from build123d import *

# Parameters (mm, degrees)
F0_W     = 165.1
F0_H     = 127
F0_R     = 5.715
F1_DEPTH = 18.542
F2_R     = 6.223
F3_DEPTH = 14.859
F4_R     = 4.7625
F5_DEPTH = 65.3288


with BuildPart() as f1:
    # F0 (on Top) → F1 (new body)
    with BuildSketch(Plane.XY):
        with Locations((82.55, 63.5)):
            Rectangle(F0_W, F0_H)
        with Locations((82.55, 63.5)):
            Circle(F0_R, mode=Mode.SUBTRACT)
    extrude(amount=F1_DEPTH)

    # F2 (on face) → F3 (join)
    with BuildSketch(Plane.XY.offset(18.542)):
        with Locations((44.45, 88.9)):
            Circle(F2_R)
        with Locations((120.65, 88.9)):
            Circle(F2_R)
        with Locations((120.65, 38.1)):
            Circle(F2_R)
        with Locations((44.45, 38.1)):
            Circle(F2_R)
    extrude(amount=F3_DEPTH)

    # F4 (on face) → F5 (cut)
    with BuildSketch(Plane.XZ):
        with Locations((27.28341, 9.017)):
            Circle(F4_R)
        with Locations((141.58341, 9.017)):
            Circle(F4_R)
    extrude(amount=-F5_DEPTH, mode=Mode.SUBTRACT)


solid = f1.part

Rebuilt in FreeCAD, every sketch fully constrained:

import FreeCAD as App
import Part
import Sketcher

V = App.Vector
Q = App.Units.Quantity

doc = App.newDocument("Part")
body = doc.addObject("PartDesign::Body", "Body")

sketch1 = body.newObject("Sketcher::SketchObject", "Sketch")
sketch1.AttachmentSupport = (doc.getObject("XY_Plane"), [""])
sketch1.MapMode = "FlatFace"
sketch1.addGeometry([
    Part.LineSegment(V(0, 127, 0), V(0, 0, 0)),
    Part.LineSegment(V(0, 0, 0), V(165, 0, 0)),
    Part.LineSegment(V(165, 0, 0), V(165, 127, 0)),
    Part.LineSegment(V(165, 127, 0), V(0, 127, 0)),
    Part.Circle(V(83, 64, 0), V(0, 0, 1), 6),
], False)
sketch1.addConstraint([
    Sketcher.Constraint("Coincident", 0, 2, 1, 1),
    Sketcher.Constraint("Coincident", 1, 2, 2, 1),
    Sketcher.Constraint("Coincident", 2, 2, 3, 1),
    Sketcher.Constraint("Coincident", 3, 2, 0, 1),
    Sketcher.Constraint("Vertical", 0),
    Sketcher.Constraint("Horizontal", 1),
    Sketcher.Constraint("Vertical", 2),
    Sketcher.Constraint("Horizontal", 3),
    Sketcher.Constraint("Coincident", 0, 2, -1, 1),
    Sketcher.Constraint("Diameter", 4, Q("0.45 in")),
    Sketcher.Constraint("DistanceY", 0, 2, 0, 1, Q("5 in")),
    Sketcher.Constraint("DistanceX", 1, 1, 1, 2, Q("6.5 in")),
    Sketcher.Constraint("DistanceY", -1, 1, 4, 3, Q("2.5 in")),
    Sketcher.Constraint("DistanceX", -1, 1, 4, 3, Q("3.25 in")),
])
pad1 = body.newObject("PartDesign::Pad", "Pad")
pad1.Profile = sketch1
pad1.Length = Q("0.73 in")

sketch2 = body.newObject("Sketcher::SketchObject", "Sketch001")
sketch2.AttachmentSupport = (doc.getObject("XY_Plane"), [""])
sketch2.MapMode = "FlatFace"
sketch2.AttachmentOffset = App.Placement(V(0, 0, 0.73 * 25.4), App.Rotation())
sketch2.addGeometry([
    Part.Circle(V(44, 89, 0), V(0, 0, 1), 6),
    Part.Circle(V(121, 89, 0), V(0, 0, 1), 6),
    Part.Circle(V(121, 38, 0), V(0, 0, 1), 6),
    Part.Circle(V(44, 38, 0), V(0, 0, 1), 6),
], False)
sketch2.addConstraint([
    Sketcher.Constraint("Equal", 0, 1),
    Sketcher.Constraint("Equal", 1, 2),
    Sketcher.Constraint("Equal", 2, 3),
    Sketcher.Constraint("Horizontal", 0, 3, 1, 3),
    Sketcher.Constraint("Horizontal", 2, 3, 3, 3),
    Sketcher.Constraint("Vertical", 1, 3, 2, 3),
    Sketcher.Constraint("Vertical", 0, 3, 3, 3),
    Sketcher.Constraint("Diameter", 0, Q("0.49 in")),
    Sketcher.Constraint("DistanceX", 0, 3, 1, 3, Q("3 in")),
    Sketcher.Constraint("DistanceY", 2, 3, 1, 3, Q("2 in")),
    Sketcher.Constraint("DistanceY", -1, 1, 0, 3, Q("3.5 in")),
    Sketcher.Constraint("DistanceX", -1, 1, 0, 3, Q("1.75 in")),
])
pad2 = body.newObject("PartDesign::Pad", "Pad001")
pad2.Profile = sketch2
pad2.Length = Q("0.585 in")

sketch3 = body.newObject("Sketcher::SketchObject", "Sketch002")
sketch3.AttachmentSupport = (doc.getObject("XZ_Plane"), [""])
sketch3.MapMode = "FlatFace"
sketch3.addGeometry([
    Part.Circle(V(27.3, 9, 0), V(0, 0, 1), 4.8),
    Part.Circle(V(141.6, 9, 0), V(0, 0, 1), 4.8),
], False)
sketch3.addConstraint([
    Sketcher.Constraint("Equal", 0, 1),
    Sketcher.Constraint("Horizontal", 0, 3, 1, 3),
    Sketcher.Constraint("Diameter", 0, Q("0.375 in")),
    Sketcher.Constraint("DistanceX", 0, 3, 1, 3, Q("4.5 in")),
    Sketcher.Constraint("DistanceY", -1, 1, 0, 3, Q("0.355 in")),
    Sketcher.Constraint("DistanceX", -1, 1, 0, 3, Q("27.28341 mm")),
])
pocket1 = body.newObject("PartDesign::Pocket", "Pocket")
pocket1.Profile = sketch3
pocket1.Length = Q("2.572 in")

doc.recompute()
